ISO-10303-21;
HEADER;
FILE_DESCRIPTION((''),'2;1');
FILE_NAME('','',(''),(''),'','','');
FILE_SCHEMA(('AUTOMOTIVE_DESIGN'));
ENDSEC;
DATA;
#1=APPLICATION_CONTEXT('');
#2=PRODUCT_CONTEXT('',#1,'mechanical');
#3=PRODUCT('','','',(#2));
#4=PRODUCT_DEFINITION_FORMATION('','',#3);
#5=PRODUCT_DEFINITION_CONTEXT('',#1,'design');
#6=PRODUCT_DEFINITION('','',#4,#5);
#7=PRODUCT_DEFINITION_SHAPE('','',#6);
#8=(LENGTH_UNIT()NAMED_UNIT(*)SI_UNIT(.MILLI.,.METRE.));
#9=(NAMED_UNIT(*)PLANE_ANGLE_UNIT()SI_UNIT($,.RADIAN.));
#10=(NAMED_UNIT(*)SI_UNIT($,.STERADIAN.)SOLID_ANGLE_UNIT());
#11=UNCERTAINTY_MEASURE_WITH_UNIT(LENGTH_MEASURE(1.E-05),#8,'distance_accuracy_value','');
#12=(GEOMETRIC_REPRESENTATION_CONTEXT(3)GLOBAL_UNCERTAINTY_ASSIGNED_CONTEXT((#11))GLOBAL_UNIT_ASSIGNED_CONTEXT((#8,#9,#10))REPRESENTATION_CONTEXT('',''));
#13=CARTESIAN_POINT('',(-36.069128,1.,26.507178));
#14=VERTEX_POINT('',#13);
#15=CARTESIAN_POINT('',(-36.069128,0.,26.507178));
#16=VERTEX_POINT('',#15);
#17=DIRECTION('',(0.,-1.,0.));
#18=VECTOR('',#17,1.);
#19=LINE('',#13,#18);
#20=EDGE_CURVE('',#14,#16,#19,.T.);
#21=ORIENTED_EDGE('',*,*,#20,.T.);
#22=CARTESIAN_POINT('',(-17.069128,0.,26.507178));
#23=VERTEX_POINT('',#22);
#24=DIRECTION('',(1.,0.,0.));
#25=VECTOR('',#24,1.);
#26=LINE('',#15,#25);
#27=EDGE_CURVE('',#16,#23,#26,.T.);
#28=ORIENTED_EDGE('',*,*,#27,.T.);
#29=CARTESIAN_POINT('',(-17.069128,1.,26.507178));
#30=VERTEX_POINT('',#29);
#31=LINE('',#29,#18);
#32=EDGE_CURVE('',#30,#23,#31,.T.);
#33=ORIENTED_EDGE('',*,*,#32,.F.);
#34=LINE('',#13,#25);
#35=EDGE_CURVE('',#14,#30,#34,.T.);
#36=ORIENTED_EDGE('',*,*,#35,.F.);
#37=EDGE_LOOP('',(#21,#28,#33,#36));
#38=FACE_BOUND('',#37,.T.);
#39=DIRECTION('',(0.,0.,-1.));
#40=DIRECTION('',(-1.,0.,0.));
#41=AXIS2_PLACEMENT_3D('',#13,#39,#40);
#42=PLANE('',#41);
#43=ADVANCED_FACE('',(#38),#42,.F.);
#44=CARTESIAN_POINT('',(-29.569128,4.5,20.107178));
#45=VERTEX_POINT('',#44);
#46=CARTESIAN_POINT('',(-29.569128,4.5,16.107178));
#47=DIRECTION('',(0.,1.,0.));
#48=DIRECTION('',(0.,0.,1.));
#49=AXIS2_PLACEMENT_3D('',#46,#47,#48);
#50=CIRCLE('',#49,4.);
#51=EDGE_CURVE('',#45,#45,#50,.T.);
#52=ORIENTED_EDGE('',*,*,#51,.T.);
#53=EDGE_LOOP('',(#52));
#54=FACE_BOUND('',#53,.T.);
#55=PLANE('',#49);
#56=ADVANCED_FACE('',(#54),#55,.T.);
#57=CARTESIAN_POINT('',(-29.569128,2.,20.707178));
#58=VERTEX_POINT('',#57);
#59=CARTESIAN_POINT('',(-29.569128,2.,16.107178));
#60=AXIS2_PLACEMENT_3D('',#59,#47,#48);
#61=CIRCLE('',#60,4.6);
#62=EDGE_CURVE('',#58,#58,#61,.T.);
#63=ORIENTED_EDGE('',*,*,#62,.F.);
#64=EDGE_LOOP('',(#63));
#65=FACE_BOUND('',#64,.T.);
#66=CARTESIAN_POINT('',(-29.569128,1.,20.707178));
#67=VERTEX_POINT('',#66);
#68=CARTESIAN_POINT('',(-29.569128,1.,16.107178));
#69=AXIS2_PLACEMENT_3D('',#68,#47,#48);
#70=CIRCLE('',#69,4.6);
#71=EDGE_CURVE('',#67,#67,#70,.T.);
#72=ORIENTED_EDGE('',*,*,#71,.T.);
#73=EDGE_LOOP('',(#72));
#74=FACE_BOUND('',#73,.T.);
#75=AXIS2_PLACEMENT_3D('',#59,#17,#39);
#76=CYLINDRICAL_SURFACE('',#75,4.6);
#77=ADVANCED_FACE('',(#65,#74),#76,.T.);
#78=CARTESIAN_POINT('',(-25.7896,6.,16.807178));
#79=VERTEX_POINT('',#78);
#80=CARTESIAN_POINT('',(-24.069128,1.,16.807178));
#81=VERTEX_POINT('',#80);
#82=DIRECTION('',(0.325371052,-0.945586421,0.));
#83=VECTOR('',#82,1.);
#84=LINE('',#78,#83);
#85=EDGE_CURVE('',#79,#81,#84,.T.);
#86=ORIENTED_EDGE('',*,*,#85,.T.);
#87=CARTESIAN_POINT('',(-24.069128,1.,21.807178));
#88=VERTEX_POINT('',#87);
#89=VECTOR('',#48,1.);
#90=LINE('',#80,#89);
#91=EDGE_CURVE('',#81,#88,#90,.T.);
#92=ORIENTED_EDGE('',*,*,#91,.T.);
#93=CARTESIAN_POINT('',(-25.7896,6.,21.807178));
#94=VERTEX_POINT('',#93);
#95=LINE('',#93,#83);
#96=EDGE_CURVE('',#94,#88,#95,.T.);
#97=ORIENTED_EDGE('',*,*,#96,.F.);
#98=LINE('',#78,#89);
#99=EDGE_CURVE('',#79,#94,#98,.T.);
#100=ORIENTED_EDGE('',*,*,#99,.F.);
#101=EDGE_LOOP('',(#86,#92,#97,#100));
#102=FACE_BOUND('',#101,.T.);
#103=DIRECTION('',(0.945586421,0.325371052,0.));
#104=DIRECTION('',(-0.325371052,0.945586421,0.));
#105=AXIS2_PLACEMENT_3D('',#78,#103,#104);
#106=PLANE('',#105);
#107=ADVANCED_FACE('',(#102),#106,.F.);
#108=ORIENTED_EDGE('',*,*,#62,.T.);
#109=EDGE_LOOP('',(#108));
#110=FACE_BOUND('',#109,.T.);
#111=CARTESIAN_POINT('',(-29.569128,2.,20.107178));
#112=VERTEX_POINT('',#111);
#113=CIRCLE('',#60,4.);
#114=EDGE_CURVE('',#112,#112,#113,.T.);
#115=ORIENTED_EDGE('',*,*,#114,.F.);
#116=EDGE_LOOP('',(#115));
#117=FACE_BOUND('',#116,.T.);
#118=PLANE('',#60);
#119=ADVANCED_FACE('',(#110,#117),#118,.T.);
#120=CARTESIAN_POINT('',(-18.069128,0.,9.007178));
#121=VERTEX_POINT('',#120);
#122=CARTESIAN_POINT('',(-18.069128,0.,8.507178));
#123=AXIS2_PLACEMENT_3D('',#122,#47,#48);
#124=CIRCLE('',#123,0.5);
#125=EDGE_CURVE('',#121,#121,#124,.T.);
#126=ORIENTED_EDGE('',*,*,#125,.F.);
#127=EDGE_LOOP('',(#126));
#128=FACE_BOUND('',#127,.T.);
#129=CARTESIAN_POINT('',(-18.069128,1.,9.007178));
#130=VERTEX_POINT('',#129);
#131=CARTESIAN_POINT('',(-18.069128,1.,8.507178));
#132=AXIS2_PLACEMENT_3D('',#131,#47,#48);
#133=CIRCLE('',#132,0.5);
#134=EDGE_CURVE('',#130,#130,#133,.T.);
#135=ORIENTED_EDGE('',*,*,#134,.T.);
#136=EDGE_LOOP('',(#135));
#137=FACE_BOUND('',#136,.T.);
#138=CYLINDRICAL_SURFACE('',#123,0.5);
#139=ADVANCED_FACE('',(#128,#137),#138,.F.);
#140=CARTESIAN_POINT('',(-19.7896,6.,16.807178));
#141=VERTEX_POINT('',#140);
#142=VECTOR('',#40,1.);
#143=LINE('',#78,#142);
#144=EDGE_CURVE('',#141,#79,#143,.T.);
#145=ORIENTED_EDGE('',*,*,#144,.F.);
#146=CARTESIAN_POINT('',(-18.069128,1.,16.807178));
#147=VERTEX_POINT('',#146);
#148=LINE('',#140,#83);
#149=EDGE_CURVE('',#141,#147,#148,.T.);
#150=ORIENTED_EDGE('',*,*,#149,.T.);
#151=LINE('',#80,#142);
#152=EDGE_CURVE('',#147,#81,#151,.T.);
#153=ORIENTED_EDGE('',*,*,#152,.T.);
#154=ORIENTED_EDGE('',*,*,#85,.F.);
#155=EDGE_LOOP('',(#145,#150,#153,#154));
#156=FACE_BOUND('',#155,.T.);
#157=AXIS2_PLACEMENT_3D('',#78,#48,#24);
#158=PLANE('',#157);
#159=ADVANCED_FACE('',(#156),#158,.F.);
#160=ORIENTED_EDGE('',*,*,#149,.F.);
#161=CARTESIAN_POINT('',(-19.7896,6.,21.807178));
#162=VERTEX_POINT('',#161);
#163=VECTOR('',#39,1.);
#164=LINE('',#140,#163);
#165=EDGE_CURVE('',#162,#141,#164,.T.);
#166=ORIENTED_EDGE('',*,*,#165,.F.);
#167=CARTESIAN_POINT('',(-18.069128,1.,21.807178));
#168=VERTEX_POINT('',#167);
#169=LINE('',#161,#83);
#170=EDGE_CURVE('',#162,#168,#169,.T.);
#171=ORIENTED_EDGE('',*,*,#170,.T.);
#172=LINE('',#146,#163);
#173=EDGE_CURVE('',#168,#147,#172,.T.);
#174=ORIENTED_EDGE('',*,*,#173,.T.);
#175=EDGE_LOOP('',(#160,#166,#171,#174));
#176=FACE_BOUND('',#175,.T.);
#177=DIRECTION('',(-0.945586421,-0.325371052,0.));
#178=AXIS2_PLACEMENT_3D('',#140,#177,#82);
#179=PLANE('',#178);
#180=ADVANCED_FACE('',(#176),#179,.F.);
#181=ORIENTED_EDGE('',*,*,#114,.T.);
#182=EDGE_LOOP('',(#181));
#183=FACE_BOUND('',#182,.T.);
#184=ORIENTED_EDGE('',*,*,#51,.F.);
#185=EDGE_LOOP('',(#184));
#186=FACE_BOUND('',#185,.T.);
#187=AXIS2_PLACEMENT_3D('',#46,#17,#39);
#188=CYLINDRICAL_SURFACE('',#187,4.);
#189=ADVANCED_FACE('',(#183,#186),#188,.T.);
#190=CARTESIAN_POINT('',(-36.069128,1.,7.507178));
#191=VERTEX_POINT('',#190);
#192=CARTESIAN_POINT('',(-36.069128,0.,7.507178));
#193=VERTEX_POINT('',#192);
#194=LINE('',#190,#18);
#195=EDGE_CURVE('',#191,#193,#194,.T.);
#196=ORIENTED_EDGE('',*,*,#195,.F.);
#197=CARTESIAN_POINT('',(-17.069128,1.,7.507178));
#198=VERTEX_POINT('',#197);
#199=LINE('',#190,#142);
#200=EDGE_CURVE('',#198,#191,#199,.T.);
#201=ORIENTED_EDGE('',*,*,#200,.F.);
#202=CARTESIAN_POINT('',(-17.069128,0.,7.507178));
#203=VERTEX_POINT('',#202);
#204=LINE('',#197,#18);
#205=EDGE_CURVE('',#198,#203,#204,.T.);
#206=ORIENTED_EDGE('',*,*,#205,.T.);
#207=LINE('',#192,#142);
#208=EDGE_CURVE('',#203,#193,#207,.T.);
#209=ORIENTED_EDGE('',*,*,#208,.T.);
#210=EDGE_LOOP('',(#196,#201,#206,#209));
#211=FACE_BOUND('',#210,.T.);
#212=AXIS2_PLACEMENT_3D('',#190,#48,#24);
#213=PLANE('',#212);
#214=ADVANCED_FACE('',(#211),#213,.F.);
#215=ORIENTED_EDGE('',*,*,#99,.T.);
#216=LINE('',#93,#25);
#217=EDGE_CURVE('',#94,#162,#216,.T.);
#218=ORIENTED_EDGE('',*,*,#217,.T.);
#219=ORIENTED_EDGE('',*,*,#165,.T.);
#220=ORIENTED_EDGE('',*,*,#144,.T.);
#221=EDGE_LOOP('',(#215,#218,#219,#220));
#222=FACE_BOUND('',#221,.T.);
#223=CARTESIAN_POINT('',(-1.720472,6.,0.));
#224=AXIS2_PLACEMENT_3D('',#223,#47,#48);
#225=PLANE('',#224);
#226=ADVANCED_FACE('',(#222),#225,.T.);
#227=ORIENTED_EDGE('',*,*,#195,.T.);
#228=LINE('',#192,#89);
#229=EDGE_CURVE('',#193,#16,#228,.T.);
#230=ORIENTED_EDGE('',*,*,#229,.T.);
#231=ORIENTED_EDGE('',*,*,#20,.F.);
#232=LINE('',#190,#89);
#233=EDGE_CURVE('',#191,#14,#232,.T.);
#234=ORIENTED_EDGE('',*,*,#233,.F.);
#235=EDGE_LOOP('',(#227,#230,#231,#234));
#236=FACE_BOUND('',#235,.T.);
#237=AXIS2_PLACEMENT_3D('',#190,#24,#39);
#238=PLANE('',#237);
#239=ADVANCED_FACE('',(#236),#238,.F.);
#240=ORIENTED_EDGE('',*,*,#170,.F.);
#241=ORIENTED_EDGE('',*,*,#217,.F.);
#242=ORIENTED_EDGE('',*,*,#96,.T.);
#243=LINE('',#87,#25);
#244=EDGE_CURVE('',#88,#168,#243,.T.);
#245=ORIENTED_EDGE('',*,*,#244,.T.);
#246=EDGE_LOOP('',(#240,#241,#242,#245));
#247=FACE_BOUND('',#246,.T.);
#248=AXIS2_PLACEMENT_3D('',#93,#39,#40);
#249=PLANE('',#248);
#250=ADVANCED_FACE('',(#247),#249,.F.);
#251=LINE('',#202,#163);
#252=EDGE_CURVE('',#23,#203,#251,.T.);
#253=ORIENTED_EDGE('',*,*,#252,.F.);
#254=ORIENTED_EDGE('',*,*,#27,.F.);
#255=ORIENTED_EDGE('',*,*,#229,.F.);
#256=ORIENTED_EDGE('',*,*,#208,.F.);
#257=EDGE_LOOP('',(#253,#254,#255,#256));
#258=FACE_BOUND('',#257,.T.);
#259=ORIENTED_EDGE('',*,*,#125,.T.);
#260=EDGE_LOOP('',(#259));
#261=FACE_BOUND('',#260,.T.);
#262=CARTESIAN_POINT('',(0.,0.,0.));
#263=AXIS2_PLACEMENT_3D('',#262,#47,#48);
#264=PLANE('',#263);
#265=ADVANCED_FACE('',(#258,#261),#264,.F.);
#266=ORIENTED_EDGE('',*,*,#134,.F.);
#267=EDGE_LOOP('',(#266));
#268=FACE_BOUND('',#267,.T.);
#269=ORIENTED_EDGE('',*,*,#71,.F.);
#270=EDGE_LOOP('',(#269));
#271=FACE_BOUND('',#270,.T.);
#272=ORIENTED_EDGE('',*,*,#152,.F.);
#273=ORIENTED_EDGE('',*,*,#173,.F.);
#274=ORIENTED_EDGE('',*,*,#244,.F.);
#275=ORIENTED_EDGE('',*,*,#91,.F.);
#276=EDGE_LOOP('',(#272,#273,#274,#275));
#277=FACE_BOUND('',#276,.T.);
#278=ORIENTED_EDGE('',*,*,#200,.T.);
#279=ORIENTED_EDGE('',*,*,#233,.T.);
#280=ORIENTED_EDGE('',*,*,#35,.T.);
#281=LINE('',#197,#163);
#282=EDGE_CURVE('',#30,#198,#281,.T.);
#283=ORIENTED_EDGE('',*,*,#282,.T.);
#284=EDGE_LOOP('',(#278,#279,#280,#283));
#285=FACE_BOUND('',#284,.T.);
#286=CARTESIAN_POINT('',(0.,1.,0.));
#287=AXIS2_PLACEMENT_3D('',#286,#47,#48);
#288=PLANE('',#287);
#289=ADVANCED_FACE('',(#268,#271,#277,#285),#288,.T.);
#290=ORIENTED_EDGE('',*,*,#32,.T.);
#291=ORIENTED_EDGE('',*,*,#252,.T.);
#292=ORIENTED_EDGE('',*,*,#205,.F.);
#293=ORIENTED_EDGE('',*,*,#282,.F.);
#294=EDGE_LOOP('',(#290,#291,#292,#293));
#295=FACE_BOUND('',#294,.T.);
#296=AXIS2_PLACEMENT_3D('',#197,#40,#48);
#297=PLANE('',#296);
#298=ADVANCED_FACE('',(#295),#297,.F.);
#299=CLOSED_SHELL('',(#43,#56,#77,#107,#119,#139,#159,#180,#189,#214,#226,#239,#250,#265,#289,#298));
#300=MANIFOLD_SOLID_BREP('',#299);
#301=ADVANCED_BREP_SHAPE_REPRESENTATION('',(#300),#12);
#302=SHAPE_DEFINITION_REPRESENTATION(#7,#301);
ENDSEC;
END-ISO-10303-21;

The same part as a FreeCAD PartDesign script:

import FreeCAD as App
import Part
import Sketcher

doc = App.newDocument("Part")
body = doc.addObject("PartDesign::Body", "Body")

# Sketch on XZ plane
sketch1 = doc.addObject("Sketcher::SketchObject", "Sketch")
body.addObject(sketch1)
sketch1.AttachmentSupport = (doc.XZ_Plane, [""])
sketch1.MapMode = "FlatFace"
sketch1.addGeometry(Part.LineSegment(App.Vector(-36, 8, 0), App.Vector(-36, 27, 0)), False)
sketch1.addGeometry(Part.LineSegment(App.Vector(-36, 27, 0), App.Vector(-17, 27, 0)), False)
sketch1.addGeometry(Part.LineSegment(App.Vector(-17, 27, 0), App.Vector(-17, 8, 0)), False)
sketch1.addGeometry(Part.LineSegment(App.Vector(-17, 8, 0), App.Vector(-36, 8, 0)), False)
sketch1.addConstraint(Sketcher.Constraint("Coincident", 0, 2, 1, 1))
sketch1.addConstraint(Sketcher.Constraint("Coincident", 1, 2, 2, 1))
sketch1.addConstraint(Sketcher.Constraint("Coincident", 2, 2, 3, 1))
sketch1.addConstraint(Sketcher.Constraint("Coincident", 3, 2, 0, 1))
sketch1.addConstraint(Sketcher.Constraint("Vertical", 0))
sketch1.addConstraint(Sketcher.Constraint("Horizontal", 1))
sketch1.addConstraint(Sketcher.Constraint("Vertical", 2))
sketch1.addConstraint(Sketcher.Constraint("Horizontal", 3))
sketch1.addConstraint(Sketcher.Constraint("Equal", 3, 0))
sketch1.addConstraint(Sketcher.Constraint("DistanceX", 1, 1, 1, 2, 19.0))
sketch1.addConstraint(Sketcher.Constraint("DistanceX", 0, 2, -1, 1, 36.069128))
sketch1.addConstraint(Sketcher.Constraint("DistanceY", -1, 1, 0, 2, 26.507178))
pad1 = doc.addObject("PartDesign::Pad", "Pad")
body.addObject(pad1)
pad1.Profile = sketch1
pad1.Length = 1
pad1.Reversed = True

# Sketch on XZ plane
sketch2 = doc.addObject("Sketcher::SketchObject", "Sketch001")
body.addObject(sketch2)
sketch2.AttachmentSupport = (doc.XZ_Plane, [""])
sketch2.MapMode = "FlatFace"
sketch2.AttachmentOffset = App.Placement(App.Vector(0, 0, -1), App.Rotation())
sketch2.addGeometry(Part.Circle(App.Vector(-18.1, 8.5, 0), App.Vector(0, 0, 1), 0.5), False)
sketch2.addConstraint(Sketcher.Constraint("Diameter", 0, 1.0))
sketch2.addConstraint(Sketcher.Constraint("DistanceX", 0, 3, -1, 1, 18.069128))
sketch2.addConstraint(Sketcher.Constraint("DistanceY", -1, 1, 0, 3, 8.507178))
pocket1 = doc.addObject("PartDesign::Pocket", "Pocket")
body.addObject(pocket1)
pocket1.Profile = sketch2
pocket1.Length = 1
pocket1.Reversed = True

# Sketch on XZ plane
sketch3 = doc.addObject("Sketcher::SketchObject", "Sketch002")
body.addObject(sketch3)
sketch3.AttachmentSupport = (doc.XZ_Plane, [""])
sketch3.MapMode = "FlatFace"
sketch3.AttachmentOffset = App.Placement(App.Vector(0, 0, -1), App.Rotation())
sketch3.addGeometry(Part.Circle(App.Vector(-29.6, 16.1, 0), App.Vector(0, 0, 1), 4.6), False)
sketch3.addConstraint(Sketcher.Constraint("Diameter", 0, 9.2))
sketch3.addConstraint(Sketcher.Constraint("DistanceX", 0, 3, -1, 1, 29.569128))
sketch3.addConstraint(Sketcher.Constraint("DistanceY", -1, 1, 0, 3, 16.107178))
pad2 = doc.addObject("PartDesign::Pad", "Pad001")
body.addObject(pad2)
pad2.Profile = sketch3
pad2.Length = 1
pad2.Reversed = True

# Sketch on XZ plane
sketch4 = doc.addObject("Sketcher::SketchObject", "Sketch003")
body.addObject(sketch4)
sketch4.AttachmentSupport = (doc.XZ_Plane, [""])
sketch4.MapMode = "FlatFace"
sketch4.AttachmentOffset = App.Placement(App.Vector(0, 0, -2), App.Rotation())
sketch4.addGeometry(Part.Circle(App.Vector(-29.6, 16.1, 0), App.Vector(0, 0, 1), 4), False)
sketch4.addConstraint(Sketcher.Constraint("Diameter", 0, 8.0))
sketch4.addConstraint(Sketcher.Constraint("DistanceX", 0, 3, -1, 1, 29.569128))
sketch4.addConstraint(Sketcher.Constraint("DistanceY", -1, 1, 0, 3, 16.107178))
pad3 = doc.addObject("PartDesign::Pad", "Pad002")
body.addObject(pad3)
pad3.Profile = sketch4
pad3.Length = 2.5
pad3.Reversed = True

# Sketch on XZ plane
sketch5 = doc.addObject("Sketcher::SketchObject", "Sketch004")
body.addObject(sketch5)
sketch5.AttachmentSupport = (doc.XZ_Plane, [""])
sketch5.MapMode = "FlatFace"
sketch5.AttachmentOffset = App.Placement(App.Vector(0, 0, -1), App.Rotation())
sketch5.addGeometry(Part.LineSegment(App.Vector(-24, 17, 0), App.Vector(-24, 22, 0)), False)
sketch5.addGeometry(Part.LineSegment(App.Vector(-24, 22, 0), App.Vector(-18, 22, 0)), False)
sketch5.addGeometry(Part.LineSegment(App.Vector(-18, 22, 0), App.Vector(-18, 17, 0)), False)
sketch5.addGeometry(Part.LineSegment(App.Vector(-18, 17, 0), App.Vector(-24, 17, 0)), False)
sketch5.addConstraint(Sketcher.Constraint("Coincident", 0, 2, 1, 1))
sketch5.addConstraint(Sketcher.Constraint("Coincident", 1, 2, 2, 1))
sketch5.addConstraint(Sketcher.Constraint("Coincident", 2, 2, 3, 1))
sketch5.addConstraint(Sketcher.Constraint("Coincident", 3, 2, 0, 1))
sketch5.addConstraint(Sketcher.Constraint("Vertical", 0))
sketch5.addConstraint(Sketcher.Constraint("Horizontal", 1))
sketch5.addConstraint(Sketcher.Constraint("Vertical", 2))
sketch5.addConstraint(Sketcher.Constraint("Horizontal", 3))
sketch5.addConstraint(Sketcher.Constraint("DistanceX", 1, 1, 1, 2, 6.0))
sketch5.addConstraint(Sketcher.Constraint("DistanceY", 0, 1, 0, 2, 5.0))
sketch5.addConstraint(Sketcher.Constraint("DistanceX", 0, 2, -1, 1, 24.069128))
sketch5.addConstraint(Sketcher.Constraint("DistanceY", -1, 1, 0, 2, 21.807178))

# Sketch on an angled plane
sketch6 = doc.addObject("Sketcher::SketchObject", "Sketch005")
body.addObject(sketch6)
sketch6.Placement = App.Placement(App.Vector(-21.213351, -7.299397, 0), App.Rotation(App.Vector(-0.325371052, 0.945586421, 0), App.Vector(0, 0, 1.000000001), App.Vector(0.945586421, 0.325371052, 0), "ZXY"))
sketch6.addGeometry(Part.LineSegment(App.Vector(9, 0, 0), App.Vector(14, 0, 0)), False)
sketch6.addConstraint(Sketcher.Constraint("Horizontal", 0))
sketch6.addConstraint(Sketcher.Constraint("PointOnObject", 0, 1, -1))
sketch6.addConstraint(Sketcher.Constraint("DistanceX", 0, 1, 0, 2, 5.287724))
sketch6.addConstraint(Sketcher.Constraint("DistanceX", -1, 1, 0, 1, 8.776984))
doc.recompute()

additivepipe = doc.addObject("PartDesign::AdditivePipe", "AdditivePipe")
body.addObject(additivepipe)
additivepipe.Profile = sketch5
additivepipe.Spine = (sketch6, ["Edge1"])

doc.recompute()
